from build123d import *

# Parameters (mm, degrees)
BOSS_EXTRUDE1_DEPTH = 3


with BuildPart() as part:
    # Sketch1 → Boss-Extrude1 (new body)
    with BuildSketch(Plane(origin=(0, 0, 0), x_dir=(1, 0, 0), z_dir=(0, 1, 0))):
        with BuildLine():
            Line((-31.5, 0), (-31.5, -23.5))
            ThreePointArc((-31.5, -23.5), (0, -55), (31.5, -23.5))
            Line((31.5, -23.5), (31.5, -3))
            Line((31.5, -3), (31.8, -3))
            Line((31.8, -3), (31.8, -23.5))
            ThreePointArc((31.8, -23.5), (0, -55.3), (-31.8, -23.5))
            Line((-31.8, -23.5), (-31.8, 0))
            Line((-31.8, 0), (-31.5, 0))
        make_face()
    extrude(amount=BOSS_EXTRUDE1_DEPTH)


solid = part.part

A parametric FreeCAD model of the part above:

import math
import FreeCAD as App
import Part
import Sketcher

V = App.Vector

doc = App.newDocument("Part")
body = doc.addObject("PartDesign::Body", "Body")

# Sketch on XZ plane
sketch1 = doc.addObject("Sketcher::SketchObject", "Sketch")
body.addObject(sketch1)
sketch1.AttachmentSupport = (doc.XZ_Plane, [""])
sketch1.MapMode = "FlatFace"
sketch1.addGeometry([
    Part.LineSegment(V(-31.5, 23.5, 0), V(-31.5, 0, 0)),  # 0
    Part.LineSegment(V(-31.5, 0, 0), V(-31.8, 0, 0)),  # 1
    Part.LineSegment(V(-31.8, 0, 0), V(-31.8, 23.5, 0)),  # 2
    Part.ArcOfCircle(Part.Circle(V(0, 23.5, 0), V(0, 0, 1), 31.8), math.radians(0), math.radians(180)),  # 3
    Part.LineSegment(V(31.8, 23.5, 0), V(31.8, 3, 0)),  # 4
    Part.LineSegment(V(31.8, 3, 0), V(31.5, 3, 0)),  # 5
    Part.LineSegment(V(31.5, 3, 0), V(31.5, 23.5, 0)),  # 6
    Part.ArcOfCircle(Part.Circle(V(0, 23.5, 0), V(0, 0, 1), 31.5), math.radians(0), math.radians(180)),  # 7
], False)
sketch1.addConstraint([
    Sketcher.Constraint("Coincident", 0, 2, 1, 1),
    Sketcher.Constraint("Coincident", 1, 2, 2, 1),
    Sketcher.Constraint("Tangent", 2, 2, 3, 2),
    Sketcher.Constraint("Tangent", 3, 1, 4, 1),
    Sketcher.Constraint("Coincident", 4, 2, 5, 1),
    Sketcher.Constraint("Coincident", 5, 2, 6, 1),
    Sketcher.Constraint("Tangent", 6, 2, 7, 1),
    Sketcher.Constraint("Tangent", 7, 2, 0, 1),
    Sketcher.Constraint("Vertical", 0),
    Sketcher.Constraint("Horizontal", 1),
    Sketcher.Constraint("Vertical", 2),
    Sketcher.Constraint("Vertical", 4),
    Sketcher.Constraint("Horizontal", 5),
    Sketcher.Constraint("Vertical", 6),
    Sketcher.Constraint("Coincident", 7, 3, 3, 3),
    Sketcher.Constraint("PointOnObject", 3, 3, -2),
    Sketcher.Constraint("PointOnObject", 0, 2, -1),
    Sketcher.Constraint("Radius", 3, 31.8),
    Sketcher.Constraint("Radius", 7, 31.5),
    Sketcher.Constraint("DistanceY", 0, 2, 0, 1, 23.5),
    Sketcher.Constraint("DistanceY", 4, 2, 4, 1, 20.5),
])
pad1 = doc.addObject("PartDesign::Pad", "Pad")
body.addObject(pad1)
pad1.Profile = sketch1
pad1.Length = 3
pad1.Reversed = True

doc.recompute()
